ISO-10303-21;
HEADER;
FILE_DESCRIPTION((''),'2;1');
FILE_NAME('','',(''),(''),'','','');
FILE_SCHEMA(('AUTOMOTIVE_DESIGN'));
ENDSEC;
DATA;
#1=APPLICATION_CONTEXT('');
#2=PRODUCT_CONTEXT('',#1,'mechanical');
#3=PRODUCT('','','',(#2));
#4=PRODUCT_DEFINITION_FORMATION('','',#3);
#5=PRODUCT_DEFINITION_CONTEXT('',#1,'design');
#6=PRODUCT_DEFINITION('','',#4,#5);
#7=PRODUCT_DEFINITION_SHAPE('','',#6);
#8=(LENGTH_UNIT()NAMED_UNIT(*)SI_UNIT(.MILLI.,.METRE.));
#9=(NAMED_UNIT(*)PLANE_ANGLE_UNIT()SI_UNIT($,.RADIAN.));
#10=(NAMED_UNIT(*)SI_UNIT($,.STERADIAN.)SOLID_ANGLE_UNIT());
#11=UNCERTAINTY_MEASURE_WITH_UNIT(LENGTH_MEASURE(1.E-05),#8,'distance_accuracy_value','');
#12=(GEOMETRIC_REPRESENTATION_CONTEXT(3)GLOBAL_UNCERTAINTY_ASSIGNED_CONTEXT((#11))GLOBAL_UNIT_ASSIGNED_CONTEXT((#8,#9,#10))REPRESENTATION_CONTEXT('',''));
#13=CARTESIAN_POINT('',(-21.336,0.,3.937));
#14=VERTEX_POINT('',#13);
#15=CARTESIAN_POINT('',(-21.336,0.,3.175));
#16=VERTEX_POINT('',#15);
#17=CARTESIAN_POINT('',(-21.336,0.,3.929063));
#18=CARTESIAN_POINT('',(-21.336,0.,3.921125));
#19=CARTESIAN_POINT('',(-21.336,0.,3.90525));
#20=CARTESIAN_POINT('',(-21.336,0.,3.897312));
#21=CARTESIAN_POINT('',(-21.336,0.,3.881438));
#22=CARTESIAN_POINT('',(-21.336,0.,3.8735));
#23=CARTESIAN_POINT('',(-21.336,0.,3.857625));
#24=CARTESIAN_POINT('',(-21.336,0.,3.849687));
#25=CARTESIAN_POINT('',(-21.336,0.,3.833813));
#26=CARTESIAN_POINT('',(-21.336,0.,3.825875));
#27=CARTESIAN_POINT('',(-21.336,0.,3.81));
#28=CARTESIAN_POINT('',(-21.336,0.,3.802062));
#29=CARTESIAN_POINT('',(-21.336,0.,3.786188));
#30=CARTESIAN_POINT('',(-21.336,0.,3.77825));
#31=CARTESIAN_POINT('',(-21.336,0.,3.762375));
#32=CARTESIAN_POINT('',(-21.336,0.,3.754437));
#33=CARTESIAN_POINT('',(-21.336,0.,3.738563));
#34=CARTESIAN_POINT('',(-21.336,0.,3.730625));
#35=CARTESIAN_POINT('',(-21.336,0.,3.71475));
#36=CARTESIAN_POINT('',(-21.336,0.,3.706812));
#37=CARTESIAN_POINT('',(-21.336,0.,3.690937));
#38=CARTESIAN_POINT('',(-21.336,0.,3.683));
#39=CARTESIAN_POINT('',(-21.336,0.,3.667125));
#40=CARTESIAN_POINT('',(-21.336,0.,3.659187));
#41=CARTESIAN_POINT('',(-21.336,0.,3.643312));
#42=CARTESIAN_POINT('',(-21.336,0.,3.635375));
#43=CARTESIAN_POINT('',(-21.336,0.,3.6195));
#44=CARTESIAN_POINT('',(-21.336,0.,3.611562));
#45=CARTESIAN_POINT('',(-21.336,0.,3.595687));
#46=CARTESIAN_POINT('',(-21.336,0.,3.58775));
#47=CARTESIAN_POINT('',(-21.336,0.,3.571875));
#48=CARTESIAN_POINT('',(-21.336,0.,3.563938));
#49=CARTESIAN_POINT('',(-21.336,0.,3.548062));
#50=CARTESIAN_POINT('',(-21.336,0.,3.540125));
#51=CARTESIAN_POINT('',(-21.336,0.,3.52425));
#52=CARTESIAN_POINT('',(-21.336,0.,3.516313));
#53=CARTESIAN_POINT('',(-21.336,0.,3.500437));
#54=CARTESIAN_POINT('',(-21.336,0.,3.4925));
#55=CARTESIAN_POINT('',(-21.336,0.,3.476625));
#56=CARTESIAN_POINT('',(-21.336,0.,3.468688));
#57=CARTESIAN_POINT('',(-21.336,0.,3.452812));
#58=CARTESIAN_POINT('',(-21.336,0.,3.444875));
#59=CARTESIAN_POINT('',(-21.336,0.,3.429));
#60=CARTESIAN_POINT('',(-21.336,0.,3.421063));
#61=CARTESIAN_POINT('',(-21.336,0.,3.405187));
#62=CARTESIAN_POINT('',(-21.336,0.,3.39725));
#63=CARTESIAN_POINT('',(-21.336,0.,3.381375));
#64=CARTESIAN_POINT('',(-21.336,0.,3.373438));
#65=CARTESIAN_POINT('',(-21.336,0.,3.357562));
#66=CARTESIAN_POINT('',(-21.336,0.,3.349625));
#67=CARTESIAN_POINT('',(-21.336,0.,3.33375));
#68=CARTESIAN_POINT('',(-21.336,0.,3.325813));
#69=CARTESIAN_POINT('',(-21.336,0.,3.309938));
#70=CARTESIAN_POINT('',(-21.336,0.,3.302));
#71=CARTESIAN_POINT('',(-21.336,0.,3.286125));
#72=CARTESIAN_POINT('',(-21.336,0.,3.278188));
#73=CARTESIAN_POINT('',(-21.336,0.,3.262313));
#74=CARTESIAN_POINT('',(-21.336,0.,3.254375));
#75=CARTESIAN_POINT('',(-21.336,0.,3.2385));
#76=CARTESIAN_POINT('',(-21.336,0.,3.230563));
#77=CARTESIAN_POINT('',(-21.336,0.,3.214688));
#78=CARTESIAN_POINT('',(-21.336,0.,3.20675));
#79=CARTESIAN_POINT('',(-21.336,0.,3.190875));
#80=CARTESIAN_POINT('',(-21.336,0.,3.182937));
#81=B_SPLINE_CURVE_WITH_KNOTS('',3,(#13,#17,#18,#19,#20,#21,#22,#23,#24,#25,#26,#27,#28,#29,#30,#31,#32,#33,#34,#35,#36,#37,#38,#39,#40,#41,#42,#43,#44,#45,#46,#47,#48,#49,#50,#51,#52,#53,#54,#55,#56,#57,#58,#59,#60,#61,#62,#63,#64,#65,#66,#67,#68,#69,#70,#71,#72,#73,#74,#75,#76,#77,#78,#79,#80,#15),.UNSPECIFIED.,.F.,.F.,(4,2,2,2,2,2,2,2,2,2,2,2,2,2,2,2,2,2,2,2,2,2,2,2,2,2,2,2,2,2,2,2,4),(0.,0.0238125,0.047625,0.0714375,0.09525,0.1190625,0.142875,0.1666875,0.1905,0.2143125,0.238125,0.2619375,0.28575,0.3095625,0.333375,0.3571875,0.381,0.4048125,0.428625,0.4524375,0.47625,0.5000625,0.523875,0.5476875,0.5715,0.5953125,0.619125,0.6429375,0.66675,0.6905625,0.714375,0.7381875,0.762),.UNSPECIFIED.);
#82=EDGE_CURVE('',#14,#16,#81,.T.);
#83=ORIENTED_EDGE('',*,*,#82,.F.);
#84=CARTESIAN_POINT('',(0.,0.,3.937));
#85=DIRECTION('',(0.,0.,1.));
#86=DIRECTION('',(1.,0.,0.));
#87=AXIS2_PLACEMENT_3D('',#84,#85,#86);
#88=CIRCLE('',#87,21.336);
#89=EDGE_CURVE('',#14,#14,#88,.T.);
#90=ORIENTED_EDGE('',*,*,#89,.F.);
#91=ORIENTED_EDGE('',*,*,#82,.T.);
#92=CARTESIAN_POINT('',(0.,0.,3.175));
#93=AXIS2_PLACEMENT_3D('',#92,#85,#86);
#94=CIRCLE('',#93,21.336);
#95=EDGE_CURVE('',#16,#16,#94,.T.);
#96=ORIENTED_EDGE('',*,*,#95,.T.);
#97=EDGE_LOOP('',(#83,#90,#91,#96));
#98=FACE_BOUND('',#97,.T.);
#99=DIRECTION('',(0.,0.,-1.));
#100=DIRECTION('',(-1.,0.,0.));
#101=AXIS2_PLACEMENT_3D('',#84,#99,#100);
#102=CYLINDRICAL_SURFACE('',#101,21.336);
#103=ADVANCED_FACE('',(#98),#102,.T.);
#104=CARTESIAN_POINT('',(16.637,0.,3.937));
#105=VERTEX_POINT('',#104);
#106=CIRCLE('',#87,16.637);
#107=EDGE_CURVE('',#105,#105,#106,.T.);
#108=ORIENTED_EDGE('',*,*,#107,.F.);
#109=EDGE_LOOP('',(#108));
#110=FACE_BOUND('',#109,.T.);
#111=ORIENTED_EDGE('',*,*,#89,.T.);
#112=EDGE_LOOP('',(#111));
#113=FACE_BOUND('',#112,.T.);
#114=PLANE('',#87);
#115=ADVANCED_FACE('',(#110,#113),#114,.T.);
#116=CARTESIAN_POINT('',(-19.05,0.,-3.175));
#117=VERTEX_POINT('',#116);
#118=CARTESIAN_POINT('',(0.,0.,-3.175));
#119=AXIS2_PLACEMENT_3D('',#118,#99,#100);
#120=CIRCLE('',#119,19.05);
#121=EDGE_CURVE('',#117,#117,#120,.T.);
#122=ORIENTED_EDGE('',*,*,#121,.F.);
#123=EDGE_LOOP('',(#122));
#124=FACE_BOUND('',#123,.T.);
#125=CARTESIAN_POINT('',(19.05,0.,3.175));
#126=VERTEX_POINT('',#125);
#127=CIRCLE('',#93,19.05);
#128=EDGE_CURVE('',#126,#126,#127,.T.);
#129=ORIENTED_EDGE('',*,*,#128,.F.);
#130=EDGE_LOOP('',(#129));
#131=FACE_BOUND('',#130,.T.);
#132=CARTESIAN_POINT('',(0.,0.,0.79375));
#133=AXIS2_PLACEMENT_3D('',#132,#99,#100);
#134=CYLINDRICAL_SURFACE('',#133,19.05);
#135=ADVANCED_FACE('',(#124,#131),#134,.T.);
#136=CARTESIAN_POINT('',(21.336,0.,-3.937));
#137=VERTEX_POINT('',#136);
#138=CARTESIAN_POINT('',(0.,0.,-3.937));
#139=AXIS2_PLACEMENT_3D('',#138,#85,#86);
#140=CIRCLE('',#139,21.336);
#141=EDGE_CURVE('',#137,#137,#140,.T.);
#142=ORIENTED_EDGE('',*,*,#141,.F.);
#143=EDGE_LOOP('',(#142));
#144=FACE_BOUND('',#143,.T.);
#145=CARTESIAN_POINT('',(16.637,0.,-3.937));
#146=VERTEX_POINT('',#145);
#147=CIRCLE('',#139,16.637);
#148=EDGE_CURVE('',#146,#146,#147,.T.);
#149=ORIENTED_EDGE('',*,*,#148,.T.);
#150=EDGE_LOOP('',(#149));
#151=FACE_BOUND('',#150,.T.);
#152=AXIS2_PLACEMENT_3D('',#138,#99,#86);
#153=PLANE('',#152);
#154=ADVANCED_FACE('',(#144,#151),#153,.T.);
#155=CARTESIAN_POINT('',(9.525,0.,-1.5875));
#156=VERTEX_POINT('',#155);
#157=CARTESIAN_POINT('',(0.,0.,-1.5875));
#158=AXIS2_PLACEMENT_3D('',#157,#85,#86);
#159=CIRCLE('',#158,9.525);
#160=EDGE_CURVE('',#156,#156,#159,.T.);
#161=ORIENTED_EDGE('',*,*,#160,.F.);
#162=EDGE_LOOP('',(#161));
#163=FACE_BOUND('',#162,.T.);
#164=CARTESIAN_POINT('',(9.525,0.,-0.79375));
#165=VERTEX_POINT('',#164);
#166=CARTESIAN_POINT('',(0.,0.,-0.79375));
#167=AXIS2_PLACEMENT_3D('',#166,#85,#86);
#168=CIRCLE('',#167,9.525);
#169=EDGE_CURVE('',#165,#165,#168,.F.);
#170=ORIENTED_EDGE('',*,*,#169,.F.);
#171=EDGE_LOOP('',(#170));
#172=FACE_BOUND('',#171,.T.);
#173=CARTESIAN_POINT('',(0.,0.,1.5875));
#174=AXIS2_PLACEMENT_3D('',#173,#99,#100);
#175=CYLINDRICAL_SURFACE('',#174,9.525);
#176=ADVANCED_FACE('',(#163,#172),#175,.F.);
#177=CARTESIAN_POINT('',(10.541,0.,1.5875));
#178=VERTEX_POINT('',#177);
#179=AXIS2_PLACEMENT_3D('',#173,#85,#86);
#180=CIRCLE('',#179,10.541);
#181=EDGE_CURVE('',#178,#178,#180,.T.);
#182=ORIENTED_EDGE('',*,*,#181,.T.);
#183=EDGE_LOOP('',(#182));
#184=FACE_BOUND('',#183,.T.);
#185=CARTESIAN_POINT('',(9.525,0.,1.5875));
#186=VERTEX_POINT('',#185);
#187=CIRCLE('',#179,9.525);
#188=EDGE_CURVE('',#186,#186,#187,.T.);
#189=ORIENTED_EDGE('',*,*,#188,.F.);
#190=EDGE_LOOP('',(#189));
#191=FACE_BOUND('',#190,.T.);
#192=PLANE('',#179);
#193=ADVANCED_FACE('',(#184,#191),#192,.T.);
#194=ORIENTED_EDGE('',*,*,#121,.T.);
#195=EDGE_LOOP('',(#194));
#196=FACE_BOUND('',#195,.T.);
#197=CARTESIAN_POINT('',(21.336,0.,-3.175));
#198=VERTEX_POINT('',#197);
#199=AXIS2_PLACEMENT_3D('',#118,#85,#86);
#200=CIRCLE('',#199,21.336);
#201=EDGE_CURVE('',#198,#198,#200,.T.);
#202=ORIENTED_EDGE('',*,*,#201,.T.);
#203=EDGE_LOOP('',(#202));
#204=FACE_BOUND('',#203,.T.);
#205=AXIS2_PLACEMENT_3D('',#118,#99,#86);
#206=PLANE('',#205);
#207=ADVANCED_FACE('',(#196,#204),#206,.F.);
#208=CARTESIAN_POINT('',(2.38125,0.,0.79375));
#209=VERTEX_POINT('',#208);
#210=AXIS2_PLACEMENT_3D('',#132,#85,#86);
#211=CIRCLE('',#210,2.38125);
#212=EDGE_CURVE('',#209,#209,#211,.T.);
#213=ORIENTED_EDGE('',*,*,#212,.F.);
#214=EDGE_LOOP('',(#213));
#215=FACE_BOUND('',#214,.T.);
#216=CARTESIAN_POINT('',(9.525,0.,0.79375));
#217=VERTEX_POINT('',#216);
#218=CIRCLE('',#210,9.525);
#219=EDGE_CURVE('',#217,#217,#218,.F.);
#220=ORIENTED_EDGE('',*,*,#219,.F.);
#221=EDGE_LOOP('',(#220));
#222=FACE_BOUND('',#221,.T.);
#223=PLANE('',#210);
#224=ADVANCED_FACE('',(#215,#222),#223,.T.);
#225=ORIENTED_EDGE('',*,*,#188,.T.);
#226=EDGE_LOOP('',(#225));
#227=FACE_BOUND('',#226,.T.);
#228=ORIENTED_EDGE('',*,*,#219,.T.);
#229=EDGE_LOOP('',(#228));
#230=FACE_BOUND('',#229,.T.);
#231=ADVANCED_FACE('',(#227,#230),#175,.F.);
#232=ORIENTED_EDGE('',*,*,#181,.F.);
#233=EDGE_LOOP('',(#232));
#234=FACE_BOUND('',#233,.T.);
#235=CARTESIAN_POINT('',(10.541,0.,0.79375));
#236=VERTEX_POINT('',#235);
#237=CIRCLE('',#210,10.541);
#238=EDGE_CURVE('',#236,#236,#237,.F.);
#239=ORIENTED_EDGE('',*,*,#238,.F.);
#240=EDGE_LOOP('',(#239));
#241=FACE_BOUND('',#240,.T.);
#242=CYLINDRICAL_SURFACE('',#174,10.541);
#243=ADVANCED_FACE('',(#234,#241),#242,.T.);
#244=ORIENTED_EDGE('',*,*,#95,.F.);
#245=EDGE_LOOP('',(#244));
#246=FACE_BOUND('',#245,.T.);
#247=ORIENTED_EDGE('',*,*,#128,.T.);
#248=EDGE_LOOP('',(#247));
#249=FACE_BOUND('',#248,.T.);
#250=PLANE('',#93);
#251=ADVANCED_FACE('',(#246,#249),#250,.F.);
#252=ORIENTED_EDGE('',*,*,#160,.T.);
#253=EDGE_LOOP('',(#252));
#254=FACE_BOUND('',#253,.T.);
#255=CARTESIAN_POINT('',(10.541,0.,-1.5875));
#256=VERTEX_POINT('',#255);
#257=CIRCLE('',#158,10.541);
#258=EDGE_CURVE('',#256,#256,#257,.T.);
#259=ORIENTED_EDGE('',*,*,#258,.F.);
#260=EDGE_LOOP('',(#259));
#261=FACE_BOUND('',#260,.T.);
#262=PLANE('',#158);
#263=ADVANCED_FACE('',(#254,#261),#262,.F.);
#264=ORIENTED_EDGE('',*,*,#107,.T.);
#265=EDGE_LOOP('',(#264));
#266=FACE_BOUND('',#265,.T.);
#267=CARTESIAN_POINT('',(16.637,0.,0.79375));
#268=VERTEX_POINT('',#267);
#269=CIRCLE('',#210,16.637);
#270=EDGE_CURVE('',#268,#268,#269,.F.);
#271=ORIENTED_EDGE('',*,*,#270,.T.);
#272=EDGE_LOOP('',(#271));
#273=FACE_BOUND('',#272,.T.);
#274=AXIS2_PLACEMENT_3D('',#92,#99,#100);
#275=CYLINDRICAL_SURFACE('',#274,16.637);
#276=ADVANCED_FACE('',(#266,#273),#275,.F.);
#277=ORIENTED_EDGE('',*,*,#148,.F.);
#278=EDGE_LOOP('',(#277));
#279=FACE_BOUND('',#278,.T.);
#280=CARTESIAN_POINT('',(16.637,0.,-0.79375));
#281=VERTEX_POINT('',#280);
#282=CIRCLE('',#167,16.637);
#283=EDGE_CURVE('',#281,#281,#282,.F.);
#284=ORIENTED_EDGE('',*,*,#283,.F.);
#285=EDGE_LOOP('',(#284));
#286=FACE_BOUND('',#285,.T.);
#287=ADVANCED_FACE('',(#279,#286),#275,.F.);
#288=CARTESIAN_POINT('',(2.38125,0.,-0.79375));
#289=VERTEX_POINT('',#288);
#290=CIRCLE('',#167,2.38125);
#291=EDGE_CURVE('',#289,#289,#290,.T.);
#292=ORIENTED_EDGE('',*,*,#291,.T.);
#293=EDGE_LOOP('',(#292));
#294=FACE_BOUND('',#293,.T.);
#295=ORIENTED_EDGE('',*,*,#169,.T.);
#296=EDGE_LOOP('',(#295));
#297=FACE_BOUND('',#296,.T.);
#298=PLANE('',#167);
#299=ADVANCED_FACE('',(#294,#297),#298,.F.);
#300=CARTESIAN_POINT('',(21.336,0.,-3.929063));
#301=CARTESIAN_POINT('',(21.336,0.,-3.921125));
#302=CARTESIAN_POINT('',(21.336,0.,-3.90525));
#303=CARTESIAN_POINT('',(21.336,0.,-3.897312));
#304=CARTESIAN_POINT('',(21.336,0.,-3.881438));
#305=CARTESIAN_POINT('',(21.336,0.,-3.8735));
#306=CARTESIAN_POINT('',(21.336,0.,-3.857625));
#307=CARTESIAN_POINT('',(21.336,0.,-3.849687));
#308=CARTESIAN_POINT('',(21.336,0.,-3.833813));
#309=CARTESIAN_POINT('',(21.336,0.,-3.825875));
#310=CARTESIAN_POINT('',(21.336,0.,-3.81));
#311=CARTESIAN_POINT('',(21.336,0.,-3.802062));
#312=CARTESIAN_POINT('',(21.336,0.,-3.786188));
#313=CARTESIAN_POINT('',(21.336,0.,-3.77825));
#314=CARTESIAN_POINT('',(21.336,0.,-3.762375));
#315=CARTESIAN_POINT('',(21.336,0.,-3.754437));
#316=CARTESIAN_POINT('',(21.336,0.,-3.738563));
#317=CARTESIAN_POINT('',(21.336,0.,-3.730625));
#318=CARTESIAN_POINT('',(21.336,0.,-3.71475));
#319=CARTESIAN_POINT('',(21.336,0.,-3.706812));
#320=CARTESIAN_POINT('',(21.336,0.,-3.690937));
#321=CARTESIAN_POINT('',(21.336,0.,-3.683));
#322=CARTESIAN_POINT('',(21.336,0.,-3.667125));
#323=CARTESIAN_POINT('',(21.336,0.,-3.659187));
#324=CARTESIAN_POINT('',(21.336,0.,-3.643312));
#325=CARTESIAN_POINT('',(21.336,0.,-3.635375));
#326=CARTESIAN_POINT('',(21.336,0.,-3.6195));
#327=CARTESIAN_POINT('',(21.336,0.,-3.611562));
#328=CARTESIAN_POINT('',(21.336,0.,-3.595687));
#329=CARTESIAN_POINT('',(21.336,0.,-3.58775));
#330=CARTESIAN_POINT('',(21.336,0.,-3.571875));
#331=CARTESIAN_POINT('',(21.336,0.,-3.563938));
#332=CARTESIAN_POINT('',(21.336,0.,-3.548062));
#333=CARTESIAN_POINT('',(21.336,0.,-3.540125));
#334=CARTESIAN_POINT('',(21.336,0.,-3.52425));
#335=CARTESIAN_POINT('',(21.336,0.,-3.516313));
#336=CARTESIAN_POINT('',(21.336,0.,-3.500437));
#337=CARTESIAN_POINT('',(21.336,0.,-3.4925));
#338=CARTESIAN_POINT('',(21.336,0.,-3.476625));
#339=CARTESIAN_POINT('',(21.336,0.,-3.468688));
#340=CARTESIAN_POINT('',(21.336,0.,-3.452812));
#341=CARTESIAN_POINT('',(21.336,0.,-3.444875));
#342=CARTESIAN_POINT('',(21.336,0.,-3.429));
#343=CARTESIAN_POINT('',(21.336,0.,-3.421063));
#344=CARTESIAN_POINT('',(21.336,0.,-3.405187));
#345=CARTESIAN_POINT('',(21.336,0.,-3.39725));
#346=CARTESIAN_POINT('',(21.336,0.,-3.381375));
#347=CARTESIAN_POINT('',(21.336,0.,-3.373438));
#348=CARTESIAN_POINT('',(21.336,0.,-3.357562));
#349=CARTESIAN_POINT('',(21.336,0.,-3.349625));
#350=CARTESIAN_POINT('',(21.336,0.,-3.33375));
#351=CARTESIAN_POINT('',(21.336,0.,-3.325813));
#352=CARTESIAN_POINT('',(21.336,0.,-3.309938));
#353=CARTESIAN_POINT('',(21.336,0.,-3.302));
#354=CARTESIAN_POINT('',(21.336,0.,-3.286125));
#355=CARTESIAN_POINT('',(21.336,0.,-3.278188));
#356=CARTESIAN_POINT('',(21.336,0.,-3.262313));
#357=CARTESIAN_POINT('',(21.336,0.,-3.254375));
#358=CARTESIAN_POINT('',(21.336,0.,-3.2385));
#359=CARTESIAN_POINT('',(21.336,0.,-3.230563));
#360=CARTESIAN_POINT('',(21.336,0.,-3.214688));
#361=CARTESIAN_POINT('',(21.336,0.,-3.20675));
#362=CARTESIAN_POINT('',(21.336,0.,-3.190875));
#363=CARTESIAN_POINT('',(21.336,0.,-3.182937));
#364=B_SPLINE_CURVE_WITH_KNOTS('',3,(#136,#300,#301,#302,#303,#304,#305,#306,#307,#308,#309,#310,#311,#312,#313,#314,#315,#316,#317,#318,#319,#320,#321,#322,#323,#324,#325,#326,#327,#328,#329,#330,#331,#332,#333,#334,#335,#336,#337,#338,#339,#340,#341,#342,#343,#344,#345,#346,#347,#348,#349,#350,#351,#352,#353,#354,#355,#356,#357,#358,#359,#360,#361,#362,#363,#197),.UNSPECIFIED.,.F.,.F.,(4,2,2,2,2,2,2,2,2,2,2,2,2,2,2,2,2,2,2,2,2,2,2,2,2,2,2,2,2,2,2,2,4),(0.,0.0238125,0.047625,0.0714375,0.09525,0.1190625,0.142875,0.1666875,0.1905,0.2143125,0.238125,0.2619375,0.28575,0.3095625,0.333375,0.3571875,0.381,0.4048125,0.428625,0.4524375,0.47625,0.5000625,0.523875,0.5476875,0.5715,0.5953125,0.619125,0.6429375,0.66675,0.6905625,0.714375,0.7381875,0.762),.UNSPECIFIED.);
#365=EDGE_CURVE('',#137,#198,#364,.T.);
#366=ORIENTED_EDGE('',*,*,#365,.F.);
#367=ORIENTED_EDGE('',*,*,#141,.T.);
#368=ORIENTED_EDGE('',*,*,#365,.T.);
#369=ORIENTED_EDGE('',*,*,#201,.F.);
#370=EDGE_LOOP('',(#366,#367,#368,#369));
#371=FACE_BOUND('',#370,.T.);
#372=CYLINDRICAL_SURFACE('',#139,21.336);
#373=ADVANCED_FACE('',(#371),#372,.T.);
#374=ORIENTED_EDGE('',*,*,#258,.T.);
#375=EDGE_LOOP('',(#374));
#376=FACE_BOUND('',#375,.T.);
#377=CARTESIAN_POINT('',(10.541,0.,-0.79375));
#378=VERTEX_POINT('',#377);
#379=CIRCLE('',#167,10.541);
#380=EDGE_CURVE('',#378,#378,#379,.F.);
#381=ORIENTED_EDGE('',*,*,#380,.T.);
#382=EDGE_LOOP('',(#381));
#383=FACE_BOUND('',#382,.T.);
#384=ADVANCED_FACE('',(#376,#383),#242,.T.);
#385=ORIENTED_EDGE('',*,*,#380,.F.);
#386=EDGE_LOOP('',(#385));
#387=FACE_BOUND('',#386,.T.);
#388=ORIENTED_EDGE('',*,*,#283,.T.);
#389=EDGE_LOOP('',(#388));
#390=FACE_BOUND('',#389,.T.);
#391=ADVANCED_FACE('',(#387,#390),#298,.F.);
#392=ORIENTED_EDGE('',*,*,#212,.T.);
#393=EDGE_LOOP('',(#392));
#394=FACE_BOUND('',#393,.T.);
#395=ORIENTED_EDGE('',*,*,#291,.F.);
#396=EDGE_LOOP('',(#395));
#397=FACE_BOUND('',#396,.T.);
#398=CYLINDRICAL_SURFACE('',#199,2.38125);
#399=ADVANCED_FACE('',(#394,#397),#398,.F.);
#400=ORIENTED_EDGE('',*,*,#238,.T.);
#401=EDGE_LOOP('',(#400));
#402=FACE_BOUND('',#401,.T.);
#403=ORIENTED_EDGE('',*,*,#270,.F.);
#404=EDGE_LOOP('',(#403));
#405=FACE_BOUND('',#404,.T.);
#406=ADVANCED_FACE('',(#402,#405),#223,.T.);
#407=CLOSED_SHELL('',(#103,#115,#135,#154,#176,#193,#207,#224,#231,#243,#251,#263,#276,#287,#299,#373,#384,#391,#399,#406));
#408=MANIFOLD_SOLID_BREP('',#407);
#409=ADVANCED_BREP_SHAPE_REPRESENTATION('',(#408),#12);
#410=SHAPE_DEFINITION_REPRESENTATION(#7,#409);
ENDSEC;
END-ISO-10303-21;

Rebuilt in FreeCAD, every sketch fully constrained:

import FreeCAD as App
import Part
import Sketcher
Q = App.Units.Quantity

doc = App.newDocument("Part")
params = doc.addObject("Spreadsheet::Sheet", "Params")
for row, (alias, value) in enumerate([
    ("sketch1_diameter", "1.5 in"),
    ("pad1_length", "0.0625 in"),
    ("sketch2_diameter", "1.5 in"),
    ("sketch2_diameter2", "1.31 in"),
    ("pad2_length", "0.25 in"),
    ("sketch3_diameter", "0.83 in"),
    ("sketch3_diameter2", "0.75 in"),
    ("pad3_length", "0.125 in"),
    ("sketch4_diameter", "0.1875 in"),
    ("sketch5_diameter", "1.68 in"),
    ("sketch5_diameter2", "1.31 in"),
    ("pad4_length", "0.03 in"),
], start=1):
    params.set(f"A{row}", alias)
    params.set(f"B{row}", "=" + value)
    params.setAlias(f"B{row}", alias)

body = doc.addObject("PartDesign::Body", "Body")

sketch1 = doc.addObject("Sketcher::SketchObject", "Sketch")
body.addObject(sketch1)
sketch1.AttachmentSupport = (doc.XY_Plane, [""])
sketch1.MapMode = "FlatFace"
sketch1.addGeometry(Part.Circle(App.Vector(0, 0, 0), App.Vector(0, 0, 1), 19), False)
sketch1.addConstraint([
    Sketcher.Constraint("Coincident", 0, 3, -1, 1),
    Sketcher.Constraint("Diameter", 0, Q("1.5 in")),
])
sketch1.setExpression("Constraints[1]", "Params.sketch1_diameter")
pad1 = doc.addObject("PartDesign::Pad", "Pad")
body.addObject(pad1)
pad1.Profile = sketch1
pad1.setExpression("Length", "Params.pad1_length")
pad1.Midplane = True

sketch2 = doc.addObject("Sketcher::SketchObject", "Sketch001")
body.addObject(sketch2)
sketch2.AttachmentSupport = (doc.XY_Plane, [""])
sketch2.MapMode = "FlatFace"
sketch2.addGeometry([
    Part.Circle(App.Vector(0, 0, 0), App.Vector(0, 0, 1), 19),
    Part.Circle(App.Vector(0, 0, 0), App.Vector(0, 0, 1), 17),
], False)
sketch2.addConstraint([
    Sketcher.Constraint("Coincident", 0, 3, -1, 1),
    Sketcher.Constraint("Coincident", 1, 3, -1, 1),
    Sketcher.Constraint("Diameter", 0, Q("1.5 in")),
    Sketcher.Constraint("Diameter", 1, Q("1.31 in")),
])
sketch2.setExpression("Constraints[2]", "Params.sketch2_diameter")
sketch2.setExpression("Constraints[3]", "Params.sketch2_diameter2")
pad2 = doc.addObject("PartDesign::Pad", "Pad001")
body.addObject(pad2)
pad2.Profile = sketch2
pad2.setExpression("Length", "Params.pad2_length")
pad2.Midplane = True

sketch3 = doc.addObject("Sketcher::SketchObject", "Sketch002")
body.addObject(sketch3)
sketch3.AttachmentSupport = (doc.XY_Plane, [""])
sketch3.MapMode = "FlatFace"
sketch3.addGeometry([
    Part.Circle(App.Vector(0, 0, 0), App.Vector(0, 0, 1), 11),
    Part.Circle(App.Vector(0, 0, 0), App.Vector(0, 0, 1), 10),
], False)
sketch3.addConstraint([
    Sketcher.Constraint("Coincident", 0, 3, -1, 1),
    Sketcher.Constraint("Coincident", 1, 3, -1, 1),
    Sketcher.Constraint("Diameter", 0, Q("0.83 in")),
    Sketcher.Constraint("Diameter", 1, Q("0.75 in")),
])
sketch3.setExpression("Constraints[2]", "Params.sketch3_diameter")
sketch3.setExpression("Constraints[3]", "Params.sketch3_diameter2")
pad3 = doc.addObject("PartDesign::Pad", "Pad002")
body.addObject(pad3)
pad3.Profile = sketch3
pad3.setExpression("Length", "Params.pad3_length")
pad3.Midplane = True

sketch4 = doc.addObject("Sketcher::SketchObject", "Sketch003")
body.addObject(sketch4)
sketch4.AttachmentSupport = (doc.XY_Plane, [""])
sketch4.MapMode = "FlatFace"
sketch4.AttachmentOffset = App.Placement(App.Vector(0, 0, 0.03125 * 25.4), App.Rotation())
sketch4.addGeometry(Part.Circle(App.Vector(0, 0, 0), App.Vector(0, 0, 1), 2.4), False)
sketch4.addConstraint([
    Sketcher.Constraint("Coincident", 0, 3, -1, 1),
    Sketcher.Constraint("Diameter", 0, Q("0.1875 in")),
])
sketch4.setExpression("Constraints[1]", "Params.sketch4_diameter")
pocket1 = doc.addObject("PartDesign::Pocket", "Pocket")
body.addObject(pocket1)
pocket1.Profile = sketch4
pocket1.Type = "ThroughAll"

sketch5 = doc.addObject("Sketcher::SketchObject", "Sketch004")
body.addObject(sketch5)
sketch5.AttachmentSupport = (doc.XY_Plane, [""])
sketch5.MapMode = "FlatFace"
sketch5.AttachmentOffset = App.Placement(App.Vector(0, 0, 0.125 * 25.4), App.Rotation())
sketch5.addGeometry([
    Part.Circle(App.Vector(0, 0, 0), App.Vector(0, 0, 1), 21),
    Part.Circle(App.Vector(0, 0, 0), App.Vector(0, 0, 1), 17),
], False)
sketch5.addConstraint([
    Sketcher.Constraint("Coincident", 0, 3, -1, 1),
    Sketcher.Constraint("Coincident", 1, 3, -1, 1),
    Sketcher.Constraint("Diameter", 0, Q("1.68 in")),
    Sketcher.Constraint("Diameter", 1, Q("1.31 in")),
])
sketch5.setExpression("Constraints[2]", "Params.sketch5_diameter")
sketch5.setExpression("Constraints[3]", "Params.sketch5_diameter2")
pad4 = doc.addObject("PartDesign::Pad", "Pad003")
body.addObject(pad4)
pad4.Profile = sketch5
pad4.setExpression("Length", "Params.pad4_length")
doc.recompute()

mirrored = doc.addObject("PartDesign::Mirrored", "Mirrored")
body.addObject(mirrored)
mirrored.Originals = [pad4]
mirrored.MirrorPlane = (doc.XY_Plane, [""])
body.Tip = mirrored

doc.recompute()
